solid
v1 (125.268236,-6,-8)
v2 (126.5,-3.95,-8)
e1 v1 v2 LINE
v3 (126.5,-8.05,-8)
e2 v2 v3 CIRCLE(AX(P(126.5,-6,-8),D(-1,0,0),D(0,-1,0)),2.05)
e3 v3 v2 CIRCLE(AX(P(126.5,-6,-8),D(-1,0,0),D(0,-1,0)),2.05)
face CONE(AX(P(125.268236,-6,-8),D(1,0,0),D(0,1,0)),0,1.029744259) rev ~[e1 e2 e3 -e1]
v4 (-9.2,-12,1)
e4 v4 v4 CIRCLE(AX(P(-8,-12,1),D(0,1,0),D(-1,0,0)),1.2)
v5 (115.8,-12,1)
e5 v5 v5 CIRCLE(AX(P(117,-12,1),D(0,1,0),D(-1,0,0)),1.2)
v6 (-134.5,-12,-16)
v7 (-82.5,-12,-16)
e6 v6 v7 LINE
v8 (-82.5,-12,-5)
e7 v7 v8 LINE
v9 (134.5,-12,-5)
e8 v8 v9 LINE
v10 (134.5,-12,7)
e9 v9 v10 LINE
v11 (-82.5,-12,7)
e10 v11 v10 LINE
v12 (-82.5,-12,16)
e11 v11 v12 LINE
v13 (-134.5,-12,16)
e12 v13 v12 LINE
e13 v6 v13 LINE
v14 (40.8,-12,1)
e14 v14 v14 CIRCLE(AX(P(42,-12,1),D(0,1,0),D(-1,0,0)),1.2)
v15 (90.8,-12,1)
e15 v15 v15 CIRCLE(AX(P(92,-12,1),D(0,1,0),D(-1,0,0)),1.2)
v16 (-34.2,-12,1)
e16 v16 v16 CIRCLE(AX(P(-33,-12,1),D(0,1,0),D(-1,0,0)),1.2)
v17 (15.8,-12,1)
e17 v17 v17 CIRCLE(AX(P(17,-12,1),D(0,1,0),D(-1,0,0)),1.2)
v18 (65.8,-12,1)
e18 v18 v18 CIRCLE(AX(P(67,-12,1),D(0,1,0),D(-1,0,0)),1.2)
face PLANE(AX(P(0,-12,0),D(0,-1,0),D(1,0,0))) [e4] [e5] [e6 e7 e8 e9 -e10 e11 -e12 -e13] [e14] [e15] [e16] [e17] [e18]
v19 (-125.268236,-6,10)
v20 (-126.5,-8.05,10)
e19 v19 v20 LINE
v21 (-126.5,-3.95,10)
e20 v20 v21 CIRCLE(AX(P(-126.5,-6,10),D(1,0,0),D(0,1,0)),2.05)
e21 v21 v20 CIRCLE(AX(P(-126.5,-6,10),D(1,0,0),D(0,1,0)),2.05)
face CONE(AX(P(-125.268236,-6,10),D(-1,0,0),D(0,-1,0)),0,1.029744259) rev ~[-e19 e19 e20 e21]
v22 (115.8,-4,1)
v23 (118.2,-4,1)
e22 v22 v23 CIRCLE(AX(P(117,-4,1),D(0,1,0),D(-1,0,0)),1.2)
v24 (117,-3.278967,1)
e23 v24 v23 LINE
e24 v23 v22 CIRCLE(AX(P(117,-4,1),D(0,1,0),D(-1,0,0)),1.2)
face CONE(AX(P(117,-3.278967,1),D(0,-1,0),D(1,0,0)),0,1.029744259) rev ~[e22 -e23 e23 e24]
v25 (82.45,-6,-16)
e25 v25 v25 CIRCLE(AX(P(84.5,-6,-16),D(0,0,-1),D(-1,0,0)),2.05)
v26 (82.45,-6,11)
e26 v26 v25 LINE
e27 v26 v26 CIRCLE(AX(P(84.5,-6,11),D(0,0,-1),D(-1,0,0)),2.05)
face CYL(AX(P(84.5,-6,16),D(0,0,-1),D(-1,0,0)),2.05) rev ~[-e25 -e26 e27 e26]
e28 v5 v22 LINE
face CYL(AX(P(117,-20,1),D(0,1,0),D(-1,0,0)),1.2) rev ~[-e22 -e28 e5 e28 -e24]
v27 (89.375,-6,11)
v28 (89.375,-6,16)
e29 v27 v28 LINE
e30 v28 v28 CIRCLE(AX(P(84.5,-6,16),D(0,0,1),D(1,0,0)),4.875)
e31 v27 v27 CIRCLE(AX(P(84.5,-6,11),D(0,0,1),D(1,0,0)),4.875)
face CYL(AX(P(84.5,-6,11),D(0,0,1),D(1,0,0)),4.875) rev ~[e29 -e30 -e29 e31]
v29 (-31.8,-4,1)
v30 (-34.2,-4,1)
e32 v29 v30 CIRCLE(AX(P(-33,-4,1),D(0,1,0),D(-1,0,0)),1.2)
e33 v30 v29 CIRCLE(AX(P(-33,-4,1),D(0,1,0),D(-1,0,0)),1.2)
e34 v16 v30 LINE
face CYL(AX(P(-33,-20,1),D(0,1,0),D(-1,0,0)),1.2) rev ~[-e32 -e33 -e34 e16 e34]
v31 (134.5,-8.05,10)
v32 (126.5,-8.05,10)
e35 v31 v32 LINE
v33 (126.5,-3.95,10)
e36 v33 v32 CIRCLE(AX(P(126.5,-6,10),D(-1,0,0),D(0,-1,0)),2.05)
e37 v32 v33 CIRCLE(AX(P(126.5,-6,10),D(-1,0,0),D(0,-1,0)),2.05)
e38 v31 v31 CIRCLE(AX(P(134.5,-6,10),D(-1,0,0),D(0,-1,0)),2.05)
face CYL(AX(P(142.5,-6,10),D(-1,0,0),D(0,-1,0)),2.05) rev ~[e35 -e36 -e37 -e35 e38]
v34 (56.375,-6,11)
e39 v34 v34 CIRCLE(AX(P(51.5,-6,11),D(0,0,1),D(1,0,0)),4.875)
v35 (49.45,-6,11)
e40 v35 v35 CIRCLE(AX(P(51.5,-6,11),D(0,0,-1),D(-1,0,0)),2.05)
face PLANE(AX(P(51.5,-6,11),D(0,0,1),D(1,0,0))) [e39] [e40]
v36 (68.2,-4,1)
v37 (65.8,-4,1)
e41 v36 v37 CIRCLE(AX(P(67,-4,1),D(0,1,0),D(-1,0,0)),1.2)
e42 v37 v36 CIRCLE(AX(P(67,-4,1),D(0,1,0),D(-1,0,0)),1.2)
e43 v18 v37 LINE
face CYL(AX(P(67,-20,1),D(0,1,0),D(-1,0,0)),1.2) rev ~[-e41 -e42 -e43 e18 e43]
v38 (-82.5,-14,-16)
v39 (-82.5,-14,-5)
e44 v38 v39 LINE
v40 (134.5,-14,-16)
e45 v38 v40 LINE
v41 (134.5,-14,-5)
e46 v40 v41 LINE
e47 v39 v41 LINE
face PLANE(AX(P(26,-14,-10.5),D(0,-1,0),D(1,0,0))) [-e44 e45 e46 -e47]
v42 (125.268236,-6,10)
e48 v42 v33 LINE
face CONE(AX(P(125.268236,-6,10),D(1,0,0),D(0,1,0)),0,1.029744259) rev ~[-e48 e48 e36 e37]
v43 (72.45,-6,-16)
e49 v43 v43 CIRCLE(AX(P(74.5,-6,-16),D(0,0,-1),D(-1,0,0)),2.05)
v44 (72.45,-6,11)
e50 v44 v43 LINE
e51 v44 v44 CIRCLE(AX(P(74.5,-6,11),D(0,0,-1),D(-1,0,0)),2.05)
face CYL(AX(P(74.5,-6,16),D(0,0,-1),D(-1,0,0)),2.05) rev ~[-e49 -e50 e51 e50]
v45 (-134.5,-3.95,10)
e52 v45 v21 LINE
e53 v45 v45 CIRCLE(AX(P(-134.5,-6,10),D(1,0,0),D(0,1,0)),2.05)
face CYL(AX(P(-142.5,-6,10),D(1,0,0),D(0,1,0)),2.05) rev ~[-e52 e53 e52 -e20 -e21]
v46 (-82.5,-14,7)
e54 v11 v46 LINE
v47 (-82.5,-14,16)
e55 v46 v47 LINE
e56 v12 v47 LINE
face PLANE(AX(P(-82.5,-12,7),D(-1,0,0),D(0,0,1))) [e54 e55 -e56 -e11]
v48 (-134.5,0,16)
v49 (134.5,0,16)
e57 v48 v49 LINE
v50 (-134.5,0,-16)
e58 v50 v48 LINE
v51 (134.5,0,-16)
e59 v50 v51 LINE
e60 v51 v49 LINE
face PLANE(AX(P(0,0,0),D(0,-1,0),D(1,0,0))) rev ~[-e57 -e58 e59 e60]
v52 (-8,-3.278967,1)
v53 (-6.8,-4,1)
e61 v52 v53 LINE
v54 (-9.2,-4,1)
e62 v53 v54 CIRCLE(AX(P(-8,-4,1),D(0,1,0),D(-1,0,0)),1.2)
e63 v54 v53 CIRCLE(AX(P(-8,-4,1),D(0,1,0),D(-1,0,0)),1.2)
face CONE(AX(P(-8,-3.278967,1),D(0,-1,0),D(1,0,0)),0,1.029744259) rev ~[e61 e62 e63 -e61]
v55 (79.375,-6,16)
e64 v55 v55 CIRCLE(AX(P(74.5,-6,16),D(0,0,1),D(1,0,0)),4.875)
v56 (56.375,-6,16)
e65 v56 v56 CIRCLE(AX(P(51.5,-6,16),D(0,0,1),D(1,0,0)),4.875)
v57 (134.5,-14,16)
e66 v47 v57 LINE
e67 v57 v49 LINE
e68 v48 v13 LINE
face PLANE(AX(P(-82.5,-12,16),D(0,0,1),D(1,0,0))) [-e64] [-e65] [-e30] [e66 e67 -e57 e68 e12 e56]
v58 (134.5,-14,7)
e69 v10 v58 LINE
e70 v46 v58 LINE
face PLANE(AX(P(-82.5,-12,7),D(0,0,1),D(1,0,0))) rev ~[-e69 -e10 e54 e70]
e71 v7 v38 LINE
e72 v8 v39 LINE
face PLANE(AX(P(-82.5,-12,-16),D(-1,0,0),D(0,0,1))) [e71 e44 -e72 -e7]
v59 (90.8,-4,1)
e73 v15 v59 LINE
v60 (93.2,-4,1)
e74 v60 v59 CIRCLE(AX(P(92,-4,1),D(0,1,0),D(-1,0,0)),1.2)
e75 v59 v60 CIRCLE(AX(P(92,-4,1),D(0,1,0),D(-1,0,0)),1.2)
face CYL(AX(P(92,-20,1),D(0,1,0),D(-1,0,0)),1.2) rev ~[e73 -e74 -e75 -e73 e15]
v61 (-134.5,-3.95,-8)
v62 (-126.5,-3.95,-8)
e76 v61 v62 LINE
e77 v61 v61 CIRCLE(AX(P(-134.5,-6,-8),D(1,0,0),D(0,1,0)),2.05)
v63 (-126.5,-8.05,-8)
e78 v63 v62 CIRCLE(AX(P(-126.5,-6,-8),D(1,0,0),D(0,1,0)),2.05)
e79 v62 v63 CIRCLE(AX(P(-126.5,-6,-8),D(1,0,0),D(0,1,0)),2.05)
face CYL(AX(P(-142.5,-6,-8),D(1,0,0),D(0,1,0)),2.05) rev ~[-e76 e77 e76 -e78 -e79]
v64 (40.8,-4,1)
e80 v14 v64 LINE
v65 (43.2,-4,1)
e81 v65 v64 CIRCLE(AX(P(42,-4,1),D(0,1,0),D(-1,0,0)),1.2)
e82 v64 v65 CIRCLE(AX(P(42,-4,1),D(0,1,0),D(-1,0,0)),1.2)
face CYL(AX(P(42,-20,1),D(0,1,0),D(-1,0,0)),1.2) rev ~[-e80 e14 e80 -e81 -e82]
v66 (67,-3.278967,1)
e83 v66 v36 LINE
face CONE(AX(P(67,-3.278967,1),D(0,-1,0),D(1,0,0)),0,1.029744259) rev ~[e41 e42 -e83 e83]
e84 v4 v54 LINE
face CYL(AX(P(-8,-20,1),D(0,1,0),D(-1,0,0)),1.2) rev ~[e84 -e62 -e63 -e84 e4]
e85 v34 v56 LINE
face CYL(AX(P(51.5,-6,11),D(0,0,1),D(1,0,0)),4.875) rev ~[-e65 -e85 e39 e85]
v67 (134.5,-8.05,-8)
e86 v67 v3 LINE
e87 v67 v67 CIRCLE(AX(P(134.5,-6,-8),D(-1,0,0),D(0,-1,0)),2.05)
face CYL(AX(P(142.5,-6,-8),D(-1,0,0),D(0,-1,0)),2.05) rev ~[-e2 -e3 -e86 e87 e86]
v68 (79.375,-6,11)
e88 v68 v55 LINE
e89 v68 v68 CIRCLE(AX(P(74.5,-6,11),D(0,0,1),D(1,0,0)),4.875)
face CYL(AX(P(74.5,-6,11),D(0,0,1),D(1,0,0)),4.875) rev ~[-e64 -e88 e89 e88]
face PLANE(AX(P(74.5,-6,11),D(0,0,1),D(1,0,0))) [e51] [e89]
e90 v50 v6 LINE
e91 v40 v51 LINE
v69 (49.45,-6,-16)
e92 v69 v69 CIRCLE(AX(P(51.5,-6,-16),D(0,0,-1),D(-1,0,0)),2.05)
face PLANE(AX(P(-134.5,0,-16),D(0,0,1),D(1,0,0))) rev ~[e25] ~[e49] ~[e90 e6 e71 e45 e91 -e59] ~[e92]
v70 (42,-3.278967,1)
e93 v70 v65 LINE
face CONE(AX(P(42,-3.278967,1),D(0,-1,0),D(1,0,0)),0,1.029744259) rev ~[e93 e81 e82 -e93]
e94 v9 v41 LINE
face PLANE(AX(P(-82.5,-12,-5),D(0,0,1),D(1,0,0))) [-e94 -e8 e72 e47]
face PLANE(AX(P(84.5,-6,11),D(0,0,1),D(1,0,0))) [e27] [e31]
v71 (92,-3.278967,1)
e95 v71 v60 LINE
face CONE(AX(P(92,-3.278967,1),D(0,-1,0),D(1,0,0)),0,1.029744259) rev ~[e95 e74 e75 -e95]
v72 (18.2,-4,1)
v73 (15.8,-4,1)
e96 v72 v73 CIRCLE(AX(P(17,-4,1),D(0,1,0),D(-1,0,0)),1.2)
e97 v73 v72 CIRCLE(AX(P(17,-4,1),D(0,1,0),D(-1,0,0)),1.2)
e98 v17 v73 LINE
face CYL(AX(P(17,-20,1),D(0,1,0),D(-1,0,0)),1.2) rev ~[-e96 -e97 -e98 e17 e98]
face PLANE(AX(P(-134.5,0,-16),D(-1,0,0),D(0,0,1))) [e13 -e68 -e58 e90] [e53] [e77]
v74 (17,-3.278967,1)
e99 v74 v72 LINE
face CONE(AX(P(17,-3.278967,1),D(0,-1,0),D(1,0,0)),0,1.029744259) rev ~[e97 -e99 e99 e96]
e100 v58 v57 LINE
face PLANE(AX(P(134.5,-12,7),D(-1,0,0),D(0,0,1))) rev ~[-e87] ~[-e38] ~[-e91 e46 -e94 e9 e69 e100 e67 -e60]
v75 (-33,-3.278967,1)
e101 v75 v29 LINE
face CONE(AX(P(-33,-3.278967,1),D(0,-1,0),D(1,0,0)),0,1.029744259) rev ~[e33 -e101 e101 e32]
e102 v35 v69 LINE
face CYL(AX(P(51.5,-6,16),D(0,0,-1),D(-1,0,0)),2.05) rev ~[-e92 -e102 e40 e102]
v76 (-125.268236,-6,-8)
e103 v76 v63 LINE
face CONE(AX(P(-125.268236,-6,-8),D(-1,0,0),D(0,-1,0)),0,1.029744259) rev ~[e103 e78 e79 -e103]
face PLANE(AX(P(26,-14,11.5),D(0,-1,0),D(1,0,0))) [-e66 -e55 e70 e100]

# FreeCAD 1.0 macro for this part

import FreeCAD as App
import Part
import Sketcher
from FreeCAD import Vector


def add_polygon(sketch, points):
    """Adds a closed chain of lines whose ends are joined by coincident constraints."""
    first, n = sketch.GeometryCount, len(points)
    for a, b in zip(points, points[1:] + points[:1]):
        sketch.addGeometry(Part.LineSegment(App.Vector(*a, 0), App.Vector(*b, 0)), False)
    for i in range(n):
        sketch.addConstraint(Sketcher.Constraint("Coincident", first + i, 2, first + (i + 1) % n, 1))

doc = App.newDocument("Part")
params = doc.addObject("Spreadsheet::Sheet", "Params")
for row, (alias, value) in enumerate([
    ("sketch1_width", "269 mm"),
    ("sketch1_height", "32 mm"),
    ("pad1_length", "12 mm"),
    ("sketch2_width", "217 mm"),
    ("sketch2_height", "9 mm"),
    ("sketch2_height2", "11 mm"),
    ("pad2_length", "2 mm"),
    ("sketch3_diameter", "2.4 mm"),
    ("hole_diameter", "2.4 mm"),
    ("hole_depth", "8 mm"),
    ("sketch4_diameter", "4.1 mm"),
    ("hole2_diameter", "4.1 mm"),
    ("hole2_depth", "8 mm"),
    ("sketch5_diameter", "4.1 mm"),
    ("hole3_diameter", "4.1 mm"),
    ("hole3_depth", "8 mm"),
    ("sketch6_diameter", "4.1 mm"),
    ("hole4_diameter", "4.1 mm"),
    ("hole4_cbore_diameter", "9.75 mm"),
    ("hole4_cbore_depth", "5 mm"),
], start=1):
    params.set(f"A{row}", alias)
    params.set(f"B{row}", "=" + value)
    params.setAlias(f"B{row}", alias)

body = doc.addObject("PartDesign::Body", "Body")

# Sketch on XZ plane
sketch1 = body.newObject("Sketcher::SketchObject", "Sketch")
sketch1.AttachmentSupport = (doc.getObject("XZ_Plane"), [""])
sketch1.MapMode = "FlatFace"
add_polygon(sketch1, [(-134, 16), (-134, -16), (134, -16), (134, 16)])  # lines 0-3
sketch1.addConstraint(Sketcher.Constraint("Vertical", 0))
sketch1.addConstraint(Sketcher.Constraint("Horizontal", 1))
sketch1.addConstraint(Sketcher.Constraint("Vertical", 2))
sketch1.addConstraint(Sketcher.Constraint("Horizontal", 3))
sketch1.addConstraint(Sketcher.Constraint("Symmetric", 0, 2, 2, 2, -1, 1))
sketch1.addConstraint(Sketcher.Constraint("DistanceX", 1, 1, 1, 2, 269.0))
sketch1.addConstraint(Sketcher.Constraint("DistanceY", 0, 2, 0, 1, 32.0))
sketch1.setExpression("Constraints[9]", "Params.sketch1_width")
sketch1.setExpression("Constraints[10]", "Params.sketch1_height")
pad1 = body.newObject("PartDesign::Pad", "Pad")
pad1.Profile = sketch1
pad1.setExpression("Length", "Params.pad1_length")

# Sketch on XZ plane
sketch2 = body.newObject("Sketcher::SketchObject", "Sketch001")
sketch2.AttachmentSupport = (doc.getObject("XZ_Plane"), [""])
sketch2.MapMode = "FlatFace"
sketch2.AttachmentOffset = App.Placement(Vector(0, 0, 12), App.Rotation())
add_polygon(sketch2, [(-82, 16), (-82, 7), (134, 7), (134, 16)])  # lines 0-3
add_polygon(sketch2, [(-82, -5), (-82, -16), (134, -16), (134, -5)])  # lines 4-7
sketch2.addConstraint(Sketcher.Constraint("Vertical", 0))
sketch2.addConstraint(Sketcher.Constraint("Horizontal", 1))
sketch2.addConstraint(Sketcher.Constraint("Vertical", 2))
sketch2.addConstraint(Sketcher.Constraint("Horizontal", 3))
sketch2.addConstraint(Sketcher.Constraint("Vertical", 4))
sketch2.addConstraint(Sketcher.Constraint("Horizontal", 5))
sketch2.addConstraint(Sketcher.Constraint("Vertical", 6))
sketch2.addConstraint(Sketcher.Constraint("Horizontal", 7))
sketch2.addConstraint(Sketcher.Constraint("Symmetric", 3, 2, 4, 2, -1))
sketch2.addConstraint(Sketcher.Constraint("Vertical", 2, 2, 5, 2))
sketch2.addConstraint(Sketcher.Constraint("DistanceX", 1, 1, 1, 2, 217.0))
sketch2.addConstraint(Sketcher.Constraint("DistanceY", 0, 2, 0, 1, 9.0))
sketch2.addConstraint(Sketcher.Constraint("DistanceY", 4, 2, 4, 1, 11.0))
sketch2.addConstraint(Sketcher.Constraint("DistanceY", -1, 1, 0, 2, 7.0))
sketch2.addConstraint(Sketcher.Constraint("DistanceX", 0, 2, -1, 1, 82.5))
sketch2.setExpression("Constraints[18]", "Params.sketch2_width")
sketch2.setExpression("Constraints[19]", "Params.sketch2_height")
sketch2.setExpression("Constraints[20]", "Params.sketch2_height2")
pad2 = body.newObject("PartDesign::Pad", "Pad001")
pad2.Profile = sketch2
pad2.setExpression("Length", "Params.pad2_length")

# Sketch on XZ plane
sketch3 = body.newObject("Sketcher::SketchObject", "Sketch002")
sketch3.AttachmentSupport = (doc.getObject("XZ_Plane"), [""])
sketch3.MapMode = "FlatFace"
sketch3.AttachmentOffset = App.Placement(Vector(0, 0, 12), App.Rotation())
sketch3.addGeometry(Part.Circle(Vector(-33, 1, 0), Vector(0, 0, 1), 1.2), False)
sketch3.addGeometry(Part.Circle(Vector(-8, 1, 0), Vector(0, 0, 1), 1.2), False)
sketch3.addGeometry(Part.Circle(Vector(17, 1, 0), Vector(0, 0, 1), 1.2), False)
sketch3.addGeometry(Part.Circle(Vector(42, 1, 0), Vector(0, 0, 1), 1.2), False)
sketch3.addGeometry(Part.Circle(Vector(67, 1, 0), Vector(0, 0, 1), 1.2), False)
sketch3.addGeometry(Part.Circle(Vector(92, 1, 0), Vector(0, 0, 1), 1.2), False)
sketch3.addGeometry(Part.Circle(Vector(117, 1, 0), Vector(0, 0, 1), 1.2), False)
sketch3.addConstraint(Sketcher.Constraint("Equal", 0, 1))
sketch3.addConstraint(Sketcher.Constraint("Equal", 1, 2))
sketch3.addConstraint(Sketcher.Constraint("Equal", 2, 3))
sketch3.addConstraint(Sketcher.Constraint("Equal", 3, 4))
sketch3.addConstraint(Sketcher.Constraint("Equal", 4, 5))
sketch3.addConstraint(Sketcher.Constraint("Equal", 5, 6))
sketch3.addConstraint(Sketcher.Constraint("Horizontal", 0, 3, 1, 3))
sketch3.addConstraint(Sketcher.Constraint("Horizontal", 1, 3, 2, 3))
sketch3.addConstraint(Sketcher.Constraint("Horizontal", 2, 3, 3, 3))
sketch3.addConstraint(Sketcher.Constraint("Horizontal", 3, 3, 4, 3))
sketch3.addConstraint(Sketcher.Constraint("Horizontal", 4, 3, 5, 3))
sketch3.addConstraint(Sketcher.Constraint("Horizontal", 5, 3, 6, 3))
sketch3.addConstraint(Sketcher.Constraint("Diameter", 0, 2.4))
sketch3.addConstraint(Sketcher.Constraint("DistanceX", 0, 3, -1, 1, 33.0))
sketch3.addConstraint(Sketcher.Constraint("DistanceY", -1, 1, 0, 3, 1.0))
sketch3.addConstraint(Sketcher.Constraint("DistanceX", 1, 3, -1, 1, 8.0))
sketch3.addConstraint(Sketcher.Constraint("DistanceX", -1, 1, 2, 3, 17.0))
sketch3.addConstraint(Sketcher.Constraint("DistanceX", -1, 1, 3, 3, 42.0))
sketch3.addConstraint(Sketcher.Constraint("DistanceX", -1, 1, 4, 3, 67.0))
sketch3.addConstraint(Sketcher.Constraint("DistanceX", -1, 1, 5, 3, 92.0))
sketch3.addConstraint(Sketcher.Constraint("DistanceX", -1, 1, 6, 3, 117.0))
sketch3.setExpression("Constraints[12]", "Params.sketch3_diameter")
doc.recompute()
hole = body.newObject("PartDesign::Hole", "Hole")
hole.Profile = sketch3
hole.ThreadType = "None"
hole.setExpression("Diameter", "Params.hole_diameter")
hole.DepthType = "Dimension"
hole.setExpression("Depth", "Params.hole_depth")
hole.DrillPoint = "Angled"
hole.DrillPointAngle = 118

# Sketch on YZ plane
sketch4 = body.newObject("Sketcher::SketchObject", "Sketch003")
sketch4.AttachmentSupport = (doc.getObject("YZ_Plane"), [""])
sketch4.MapMode = "FlatFace"
sketch4.AttachmentOffset = App.Placement(Vector(0, 0, 134.5), App.Rotation())
sketch4.addGeometry(Part.Circle(Vector(-6, 10, 0), Vector(0, 0, 1), 2), False)
sketch4.addGeometry(Part.Circle(Vector(-6, -8, 0), Vector(0, 0, 1), 2), False)
sketch4.addConstraint(Sketcher.Constraint("Equal", 0, 1))
sketch4.addConstraint(Sketcher.Constraint("Vertical", 0, 3, 1, 3))
sketch4.addConstraint(Sketcher.Constraint("Diameter", 0, 4.1))
sketch4.addConstraint(Sketcher.Constraint("DistanceX", 0, 3, -1, 1, 6.0))
sketch4.addConstraint(Sketcher.Constraint("DistanceY", -1, 1, 0, 3, 10.0))
sketch4.addConstraint(Sketcher.Constraint("DistanceY", 1, 3, -1, 1, 8.0))
sketch4.setExpression("Constraints[2]", "Params.sketch4_diameter")
doc.recompute()
hole2 = body.newObject("PartDesign::Hole", "Hole001")
hole2.Profile = sketch4
hole2.ThreadType = "None"
hole2.setExpression("Diameter", "Params.hole2_diameter")
hole2.DepthType = "Dimension"
hole2.setExpression("Depth", "Params.hole2_depth")
hole2.DrillPoint = "Angled"
hole2.DrillPointAngle = 118

# Sketch on YZ plane
sketch5 = body.newObject("Sketcher::SketchObject", "Sketch004")
sketch5.AttachmentSupport = (doc.getObject("YZ_Plane"), [""])
sketch5.MapMode = "FlatFace"
sketch5.AttachmentOffset = App.Placement(Vector(0, 0, -134.5), App.Rotation())
sketch5.addGeometry(Part.Circle(Vector(-6, 10, 0), Vector(0, 0, 1), 2), False)
sketch5.addGeometry(Part.Circle(Vector(-6, -8, 0), Vector(0, 0, 1), 2), False)
sketch5.addConstraint(Sketcher.Constraint("Equal", 0, 1))
sketch5.addConstraint(Sketcher.Constraint("Vertical", 0, 3, 1, 3))
sketch5.addConstraint(Sketcher.Constraint("Diameter", 0, 4.1))
sketch5.addConstraint(Sketcher.Constraint("DistanceX", 0, 3, -1, 1, 6.0))
sketch5.addConstraint(Sketcher.Constraint("DistanceY", -1, 1, 0, 3, 10.0))
sketch5.addConstraint(Sketcher.Constraint("DistanceY", 1, 3, -1, 1, 8.0))
sketch5.setExpression("Constraints[2]", "Params.sketch5_diameter")
doc.recompute()
hole3 = body.newObject("PartDesign::Hole", "Hole002")
hole3.Profile = sketch5
hole3.ThreadType = "None"
hole3.setExpression("Diameter", "Params.hole3_diameter")
hole3.DepthType = "Dimension"
hole3.setExpression("Depth", "Params.hole3_depth")
hole3.DrillPoint = "Angled"
hole3.DrillPointAngle = 118
hole3.Reversed = True

# Sketch on XY plane
sketch6 = body.newObject("Sketcher::SketchObject", "Sketch005")
sketch6.AttachmentSupport = (doc.getObject("XY_Plane"), [""])
sketch6.MapMode = "FlatFace"
sketch6.AttachmentOffset = App.Placement(Vector(0, 0, 16), App.Rotation())
sketch6.addGeometry(Part.Circle(Vector(51.5, -6, 0), Vector(0, 0, 1), 2), False)
sketch6.addGeometry(Part.Circle(Vector(74.5, -6, 0), Vector(0, 0, 1), 2), False)
sketch6.addGeometry(Part.Circle(Vector(84.5, -6, 0), Vector(0, 0, 1), 2), False)
sketch6.addConstraint(Sketcher.Constraint("Equal", 0, 1))
sketch6.addConstraint(Sketcher.Constraint("Equal", 1, 2))
sketch6.addConstraint(Sketcher.Constraint("Horizontal", 0, 3, 1, 3))
sketch6.addConstraint(Sketcher.Constraint("Horizontal", 1, 3, 2, 3))
sketch6.addConstraint(Sketcher.Constraint("Diameter", 0, 4.1))
sketch6.addConstraint(Sketcher.Constraint("DistanceY", 0, 3, -1, 1, 6.0))
sketch6.addConstraint(Sketcher.Constraint("DistanceX", 0, 3, 1, 3, 23.0))
sketch6.addConstraint(Sketcher.Constraint("DistanceX", 1, 3, 2, 3, 10.0))
sketch6.addConstraint(Sketcher.Constraint("DistanceX", -1, 1, 0, 3, 51.5))
sketch6.setExpression("Constraints[4]", "Params.sketch6_diameter")
doc.recompute()
hole4 = body.newObject("PartDesign::Hole", "Hole003")
hole4.Profile = sketch6
hole4.ThreadType = "None"
hole4.setExpression("Diameter", "Params.hole4_diameter")
hole4.DepthType = "ThroughAll"
hole4.HoleCutType = "Counterbore"
hole4.setExpression("HoleCutDiameter", "Params.hole4_cbore_diameter")
hole4.setExpression("HoleCutDepth", "Params.hole4_cbore_depth")

doc.recompute()
